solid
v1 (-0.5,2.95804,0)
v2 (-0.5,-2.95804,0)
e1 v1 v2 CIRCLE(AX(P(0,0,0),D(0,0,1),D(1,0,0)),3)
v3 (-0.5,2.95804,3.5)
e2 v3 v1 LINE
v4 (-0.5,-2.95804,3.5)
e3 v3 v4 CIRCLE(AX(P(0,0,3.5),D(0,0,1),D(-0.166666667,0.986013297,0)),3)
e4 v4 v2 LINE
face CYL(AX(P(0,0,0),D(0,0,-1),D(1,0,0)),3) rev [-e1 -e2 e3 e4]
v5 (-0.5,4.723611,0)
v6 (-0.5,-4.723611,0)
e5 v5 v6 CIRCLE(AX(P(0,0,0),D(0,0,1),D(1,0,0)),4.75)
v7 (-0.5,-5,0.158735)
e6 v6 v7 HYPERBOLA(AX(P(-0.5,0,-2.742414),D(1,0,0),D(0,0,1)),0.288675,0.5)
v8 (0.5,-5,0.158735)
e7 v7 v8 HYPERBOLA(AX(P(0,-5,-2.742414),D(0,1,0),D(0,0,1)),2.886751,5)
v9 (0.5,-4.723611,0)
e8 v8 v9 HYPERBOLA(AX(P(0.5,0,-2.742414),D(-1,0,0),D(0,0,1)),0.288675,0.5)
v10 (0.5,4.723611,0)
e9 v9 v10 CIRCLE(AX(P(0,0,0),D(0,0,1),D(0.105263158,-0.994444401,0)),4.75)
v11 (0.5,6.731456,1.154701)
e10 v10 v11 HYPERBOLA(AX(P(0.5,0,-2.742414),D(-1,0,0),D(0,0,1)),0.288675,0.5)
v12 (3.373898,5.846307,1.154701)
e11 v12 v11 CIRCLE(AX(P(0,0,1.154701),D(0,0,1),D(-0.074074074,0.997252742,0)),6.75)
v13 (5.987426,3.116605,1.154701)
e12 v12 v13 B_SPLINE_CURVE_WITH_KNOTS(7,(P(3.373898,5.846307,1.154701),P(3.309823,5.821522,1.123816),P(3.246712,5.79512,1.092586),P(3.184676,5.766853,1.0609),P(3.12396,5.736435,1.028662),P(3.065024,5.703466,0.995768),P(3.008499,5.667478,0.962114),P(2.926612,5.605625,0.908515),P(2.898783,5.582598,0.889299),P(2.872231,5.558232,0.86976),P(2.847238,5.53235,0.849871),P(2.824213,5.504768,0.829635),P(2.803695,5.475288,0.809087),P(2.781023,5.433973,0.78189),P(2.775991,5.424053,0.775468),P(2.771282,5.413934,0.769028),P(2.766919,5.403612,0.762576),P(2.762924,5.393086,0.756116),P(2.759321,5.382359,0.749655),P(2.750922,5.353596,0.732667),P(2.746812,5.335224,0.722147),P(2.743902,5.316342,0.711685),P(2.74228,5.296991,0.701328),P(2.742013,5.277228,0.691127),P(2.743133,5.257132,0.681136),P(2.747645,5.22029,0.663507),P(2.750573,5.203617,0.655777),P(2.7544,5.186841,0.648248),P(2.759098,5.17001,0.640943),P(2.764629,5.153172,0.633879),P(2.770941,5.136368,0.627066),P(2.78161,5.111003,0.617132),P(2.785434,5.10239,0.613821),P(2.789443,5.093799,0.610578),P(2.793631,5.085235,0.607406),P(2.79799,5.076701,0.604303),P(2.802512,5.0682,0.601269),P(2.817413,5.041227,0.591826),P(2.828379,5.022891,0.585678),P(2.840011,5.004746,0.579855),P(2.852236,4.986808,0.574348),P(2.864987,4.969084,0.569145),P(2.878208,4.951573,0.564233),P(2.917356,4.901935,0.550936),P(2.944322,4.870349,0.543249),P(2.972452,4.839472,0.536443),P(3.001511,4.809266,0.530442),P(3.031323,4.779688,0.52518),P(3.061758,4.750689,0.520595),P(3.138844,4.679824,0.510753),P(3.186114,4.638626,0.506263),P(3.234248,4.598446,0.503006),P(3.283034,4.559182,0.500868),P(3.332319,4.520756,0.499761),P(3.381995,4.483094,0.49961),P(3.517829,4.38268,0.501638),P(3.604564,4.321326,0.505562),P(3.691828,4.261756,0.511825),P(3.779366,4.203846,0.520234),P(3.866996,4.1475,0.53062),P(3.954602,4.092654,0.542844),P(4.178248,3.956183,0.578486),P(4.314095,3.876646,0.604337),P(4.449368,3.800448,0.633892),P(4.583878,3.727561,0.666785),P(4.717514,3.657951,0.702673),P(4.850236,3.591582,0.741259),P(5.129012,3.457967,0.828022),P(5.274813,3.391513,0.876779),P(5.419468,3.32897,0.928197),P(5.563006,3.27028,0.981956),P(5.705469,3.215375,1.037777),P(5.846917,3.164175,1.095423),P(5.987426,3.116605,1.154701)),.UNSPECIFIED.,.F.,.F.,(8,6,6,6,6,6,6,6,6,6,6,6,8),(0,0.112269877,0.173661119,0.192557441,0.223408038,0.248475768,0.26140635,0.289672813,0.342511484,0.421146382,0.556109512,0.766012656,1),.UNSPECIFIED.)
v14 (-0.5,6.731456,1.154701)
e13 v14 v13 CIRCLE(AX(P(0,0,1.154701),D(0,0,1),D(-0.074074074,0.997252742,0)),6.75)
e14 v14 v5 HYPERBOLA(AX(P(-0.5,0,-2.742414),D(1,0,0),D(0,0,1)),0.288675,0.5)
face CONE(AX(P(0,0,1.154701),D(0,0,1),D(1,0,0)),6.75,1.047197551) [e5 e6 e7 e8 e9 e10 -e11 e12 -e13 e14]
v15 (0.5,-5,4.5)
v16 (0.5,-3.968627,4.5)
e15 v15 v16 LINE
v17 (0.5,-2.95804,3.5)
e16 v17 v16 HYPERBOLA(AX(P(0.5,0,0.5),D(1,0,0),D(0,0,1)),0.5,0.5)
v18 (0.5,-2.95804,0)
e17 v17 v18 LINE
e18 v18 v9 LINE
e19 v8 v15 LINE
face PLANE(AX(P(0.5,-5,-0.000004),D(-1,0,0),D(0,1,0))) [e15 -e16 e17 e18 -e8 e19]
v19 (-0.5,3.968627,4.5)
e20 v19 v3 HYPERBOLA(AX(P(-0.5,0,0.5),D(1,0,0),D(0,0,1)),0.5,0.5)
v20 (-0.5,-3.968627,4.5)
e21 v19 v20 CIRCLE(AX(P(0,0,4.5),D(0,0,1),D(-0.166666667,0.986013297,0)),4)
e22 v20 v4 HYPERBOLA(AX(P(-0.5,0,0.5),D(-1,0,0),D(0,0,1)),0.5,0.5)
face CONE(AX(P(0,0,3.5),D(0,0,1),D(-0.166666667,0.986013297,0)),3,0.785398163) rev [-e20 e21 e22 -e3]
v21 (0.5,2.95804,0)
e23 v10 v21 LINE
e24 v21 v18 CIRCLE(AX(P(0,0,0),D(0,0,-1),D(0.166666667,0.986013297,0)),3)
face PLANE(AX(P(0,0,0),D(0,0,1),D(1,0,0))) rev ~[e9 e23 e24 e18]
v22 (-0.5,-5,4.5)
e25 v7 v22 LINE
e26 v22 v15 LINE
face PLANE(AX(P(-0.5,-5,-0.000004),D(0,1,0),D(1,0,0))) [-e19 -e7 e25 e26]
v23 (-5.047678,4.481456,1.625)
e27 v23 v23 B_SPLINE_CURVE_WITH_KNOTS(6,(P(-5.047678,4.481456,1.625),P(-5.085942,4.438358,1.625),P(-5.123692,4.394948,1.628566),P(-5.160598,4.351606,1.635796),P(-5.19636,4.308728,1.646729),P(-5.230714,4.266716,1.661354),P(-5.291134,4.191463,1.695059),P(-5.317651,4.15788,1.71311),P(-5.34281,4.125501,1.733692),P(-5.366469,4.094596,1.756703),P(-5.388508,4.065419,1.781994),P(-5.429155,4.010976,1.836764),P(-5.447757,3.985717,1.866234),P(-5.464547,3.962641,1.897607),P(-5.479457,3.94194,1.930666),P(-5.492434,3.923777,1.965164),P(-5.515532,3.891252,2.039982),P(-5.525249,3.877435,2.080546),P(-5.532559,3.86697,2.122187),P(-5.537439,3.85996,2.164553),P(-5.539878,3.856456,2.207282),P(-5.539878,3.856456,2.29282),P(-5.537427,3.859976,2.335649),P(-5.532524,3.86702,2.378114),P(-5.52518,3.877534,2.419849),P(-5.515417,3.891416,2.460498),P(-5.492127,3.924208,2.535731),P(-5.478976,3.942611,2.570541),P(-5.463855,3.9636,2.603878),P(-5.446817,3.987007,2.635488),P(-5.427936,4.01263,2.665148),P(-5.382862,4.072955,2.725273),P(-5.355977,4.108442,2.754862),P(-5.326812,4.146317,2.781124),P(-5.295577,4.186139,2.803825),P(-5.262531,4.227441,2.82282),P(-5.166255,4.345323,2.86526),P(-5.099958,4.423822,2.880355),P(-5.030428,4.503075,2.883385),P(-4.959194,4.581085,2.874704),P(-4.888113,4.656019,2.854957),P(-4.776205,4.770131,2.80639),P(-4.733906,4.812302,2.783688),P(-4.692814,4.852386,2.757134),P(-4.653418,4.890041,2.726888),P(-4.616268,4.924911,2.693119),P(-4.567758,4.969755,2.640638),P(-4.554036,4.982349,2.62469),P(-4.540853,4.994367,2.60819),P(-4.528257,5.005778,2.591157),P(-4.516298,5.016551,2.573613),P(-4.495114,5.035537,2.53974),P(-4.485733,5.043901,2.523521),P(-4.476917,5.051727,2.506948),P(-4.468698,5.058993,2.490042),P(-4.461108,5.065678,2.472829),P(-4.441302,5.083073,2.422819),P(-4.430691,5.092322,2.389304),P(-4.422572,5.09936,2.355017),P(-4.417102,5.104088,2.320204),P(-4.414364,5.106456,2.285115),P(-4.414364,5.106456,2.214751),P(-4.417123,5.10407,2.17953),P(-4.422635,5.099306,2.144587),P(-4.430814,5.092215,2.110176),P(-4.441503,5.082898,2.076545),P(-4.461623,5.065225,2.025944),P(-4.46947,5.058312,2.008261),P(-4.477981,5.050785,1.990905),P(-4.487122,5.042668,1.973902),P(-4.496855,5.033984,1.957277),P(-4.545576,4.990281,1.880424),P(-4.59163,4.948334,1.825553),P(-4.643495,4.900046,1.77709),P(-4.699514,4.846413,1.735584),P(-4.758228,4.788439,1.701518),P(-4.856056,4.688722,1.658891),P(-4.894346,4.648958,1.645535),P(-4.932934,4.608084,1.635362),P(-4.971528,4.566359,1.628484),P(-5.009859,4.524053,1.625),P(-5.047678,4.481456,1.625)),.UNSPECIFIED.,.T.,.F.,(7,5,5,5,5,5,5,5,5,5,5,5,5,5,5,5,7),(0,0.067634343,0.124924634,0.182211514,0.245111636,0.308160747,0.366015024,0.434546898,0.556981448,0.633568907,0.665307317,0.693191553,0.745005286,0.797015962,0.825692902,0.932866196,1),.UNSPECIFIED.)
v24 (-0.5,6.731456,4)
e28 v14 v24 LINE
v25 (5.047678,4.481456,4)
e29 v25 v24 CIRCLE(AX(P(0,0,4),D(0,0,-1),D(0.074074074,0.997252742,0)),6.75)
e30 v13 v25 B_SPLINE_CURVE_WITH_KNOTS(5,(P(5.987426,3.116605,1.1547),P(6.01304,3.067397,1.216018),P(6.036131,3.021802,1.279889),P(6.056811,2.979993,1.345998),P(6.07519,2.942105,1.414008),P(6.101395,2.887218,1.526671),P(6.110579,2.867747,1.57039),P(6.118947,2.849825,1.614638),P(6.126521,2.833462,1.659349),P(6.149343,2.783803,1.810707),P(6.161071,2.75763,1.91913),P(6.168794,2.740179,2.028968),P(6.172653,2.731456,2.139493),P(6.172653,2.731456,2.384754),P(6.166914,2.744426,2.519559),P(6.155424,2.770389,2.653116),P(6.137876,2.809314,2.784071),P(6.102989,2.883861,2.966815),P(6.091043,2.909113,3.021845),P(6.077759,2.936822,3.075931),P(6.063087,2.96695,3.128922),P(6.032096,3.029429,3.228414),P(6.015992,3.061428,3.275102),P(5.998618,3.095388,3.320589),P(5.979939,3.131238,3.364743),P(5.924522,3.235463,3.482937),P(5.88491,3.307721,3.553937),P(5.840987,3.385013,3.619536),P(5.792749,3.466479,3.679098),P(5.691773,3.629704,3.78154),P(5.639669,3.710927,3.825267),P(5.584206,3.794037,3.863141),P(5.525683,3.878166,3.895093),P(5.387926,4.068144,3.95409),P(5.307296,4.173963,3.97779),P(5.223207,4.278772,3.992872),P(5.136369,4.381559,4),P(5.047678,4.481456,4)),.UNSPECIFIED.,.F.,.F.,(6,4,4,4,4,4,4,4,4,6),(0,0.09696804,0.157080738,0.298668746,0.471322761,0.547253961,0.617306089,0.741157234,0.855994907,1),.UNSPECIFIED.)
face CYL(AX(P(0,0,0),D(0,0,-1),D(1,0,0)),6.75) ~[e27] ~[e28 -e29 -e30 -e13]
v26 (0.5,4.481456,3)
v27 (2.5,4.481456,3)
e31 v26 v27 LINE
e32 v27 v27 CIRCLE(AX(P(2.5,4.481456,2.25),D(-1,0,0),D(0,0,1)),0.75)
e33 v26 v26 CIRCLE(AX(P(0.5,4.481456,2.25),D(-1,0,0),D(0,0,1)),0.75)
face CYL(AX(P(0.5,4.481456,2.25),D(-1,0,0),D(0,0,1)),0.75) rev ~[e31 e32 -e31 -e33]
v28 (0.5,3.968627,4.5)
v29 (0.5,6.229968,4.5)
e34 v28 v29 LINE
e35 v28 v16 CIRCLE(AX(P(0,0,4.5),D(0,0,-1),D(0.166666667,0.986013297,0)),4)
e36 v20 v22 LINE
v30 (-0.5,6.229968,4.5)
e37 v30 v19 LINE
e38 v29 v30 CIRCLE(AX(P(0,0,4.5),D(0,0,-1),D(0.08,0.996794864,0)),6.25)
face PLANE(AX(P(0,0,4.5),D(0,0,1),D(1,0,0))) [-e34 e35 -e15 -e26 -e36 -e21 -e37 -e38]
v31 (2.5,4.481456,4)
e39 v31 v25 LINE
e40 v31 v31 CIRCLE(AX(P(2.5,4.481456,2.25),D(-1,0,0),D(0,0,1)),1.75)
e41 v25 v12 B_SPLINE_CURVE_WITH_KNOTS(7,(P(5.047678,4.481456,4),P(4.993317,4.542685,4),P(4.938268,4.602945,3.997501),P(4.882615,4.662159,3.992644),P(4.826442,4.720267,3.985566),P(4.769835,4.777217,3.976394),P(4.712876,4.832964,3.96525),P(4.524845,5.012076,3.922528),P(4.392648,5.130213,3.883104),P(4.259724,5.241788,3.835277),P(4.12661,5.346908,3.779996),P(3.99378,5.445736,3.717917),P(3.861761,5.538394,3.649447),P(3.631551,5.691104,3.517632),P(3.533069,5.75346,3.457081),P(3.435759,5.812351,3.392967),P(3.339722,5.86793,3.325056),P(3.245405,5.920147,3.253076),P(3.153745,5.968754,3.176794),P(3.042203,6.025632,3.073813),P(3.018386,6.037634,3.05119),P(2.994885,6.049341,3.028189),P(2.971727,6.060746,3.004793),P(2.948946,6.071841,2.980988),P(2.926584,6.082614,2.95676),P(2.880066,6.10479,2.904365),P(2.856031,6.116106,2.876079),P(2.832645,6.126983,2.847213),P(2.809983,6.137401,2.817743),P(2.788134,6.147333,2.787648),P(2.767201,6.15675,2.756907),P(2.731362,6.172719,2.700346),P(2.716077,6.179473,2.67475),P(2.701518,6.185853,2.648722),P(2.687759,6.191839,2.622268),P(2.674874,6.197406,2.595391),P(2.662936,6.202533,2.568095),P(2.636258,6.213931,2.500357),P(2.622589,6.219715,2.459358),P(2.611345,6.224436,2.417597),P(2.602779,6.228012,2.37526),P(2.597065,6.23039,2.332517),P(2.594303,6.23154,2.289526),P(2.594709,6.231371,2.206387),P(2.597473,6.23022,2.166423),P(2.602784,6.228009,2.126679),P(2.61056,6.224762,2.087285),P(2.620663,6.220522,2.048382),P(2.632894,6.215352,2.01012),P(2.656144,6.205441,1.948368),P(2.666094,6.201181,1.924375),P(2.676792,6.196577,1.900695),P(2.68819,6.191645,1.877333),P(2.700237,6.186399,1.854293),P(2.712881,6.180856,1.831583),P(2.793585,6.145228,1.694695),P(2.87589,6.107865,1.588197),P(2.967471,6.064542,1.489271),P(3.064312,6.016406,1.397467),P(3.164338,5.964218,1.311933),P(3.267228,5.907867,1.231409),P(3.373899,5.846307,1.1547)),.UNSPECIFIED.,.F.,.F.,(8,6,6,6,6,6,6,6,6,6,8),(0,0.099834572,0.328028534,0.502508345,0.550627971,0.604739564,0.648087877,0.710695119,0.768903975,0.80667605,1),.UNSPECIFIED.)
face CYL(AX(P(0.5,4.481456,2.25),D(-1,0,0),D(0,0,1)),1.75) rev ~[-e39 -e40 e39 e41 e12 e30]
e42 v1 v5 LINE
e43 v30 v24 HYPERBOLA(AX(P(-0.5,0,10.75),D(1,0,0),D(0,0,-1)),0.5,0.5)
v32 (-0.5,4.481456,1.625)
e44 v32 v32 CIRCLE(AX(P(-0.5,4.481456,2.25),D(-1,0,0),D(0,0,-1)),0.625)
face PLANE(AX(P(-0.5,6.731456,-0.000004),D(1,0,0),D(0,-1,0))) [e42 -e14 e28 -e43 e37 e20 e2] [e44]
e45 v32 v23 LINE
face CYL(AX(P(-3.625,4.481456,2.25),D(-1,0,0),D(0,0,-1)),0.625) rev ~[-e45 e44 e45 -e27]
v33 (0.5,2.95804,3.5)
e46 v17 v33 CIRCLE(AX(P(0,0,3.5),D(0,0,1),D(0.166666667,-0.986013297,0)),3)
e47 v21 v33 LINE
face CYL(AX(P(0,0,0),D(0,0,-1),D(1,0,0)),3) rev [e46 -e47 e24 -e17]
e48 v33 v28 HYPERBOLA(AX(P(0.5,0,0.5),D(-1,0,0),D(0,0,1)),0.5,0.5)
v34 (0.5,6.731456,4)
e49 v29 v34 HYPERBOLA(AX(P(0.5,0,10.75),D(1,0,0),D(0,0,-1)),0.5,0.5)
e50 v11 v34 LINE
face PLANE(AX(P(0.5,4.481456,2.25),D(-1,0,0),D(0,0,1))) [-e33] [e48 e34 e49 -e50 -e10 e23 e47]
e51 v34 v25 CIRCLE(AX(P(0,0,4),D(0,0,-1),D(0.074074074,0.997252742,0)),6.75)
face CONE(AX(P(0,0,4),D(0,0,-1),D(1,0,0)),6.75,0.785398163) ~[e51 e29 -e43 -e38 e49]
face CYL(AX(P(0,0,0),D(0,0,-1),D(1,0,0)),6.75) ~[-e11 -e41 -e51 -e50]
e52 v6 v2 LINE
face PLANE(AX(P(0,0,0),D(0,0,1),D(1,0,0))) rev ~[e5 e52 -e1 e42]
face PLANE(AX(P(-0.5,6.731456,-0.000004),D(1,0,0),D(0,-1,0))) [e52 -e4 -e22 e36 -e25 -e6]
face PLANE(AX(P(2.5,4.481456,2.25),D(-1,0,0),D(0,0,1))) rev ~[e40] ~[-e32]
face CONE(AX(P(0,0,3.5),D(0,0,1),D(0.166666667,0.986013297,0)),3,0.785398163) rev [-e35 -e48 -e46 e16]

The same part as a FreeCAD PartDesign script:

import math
import FreeCAD as App
import Part
import Sketcher
Q = App.Units.Quantity


def edges_at(feature, points):
    """Names of the edges that pass closest to the given points."""
    edges = feature.Shape.Edges
    near = lambda p: min(range(len(edges)), key=lambda i: edges[i].distToShape(Part.Vertex(*p))[0])
    return sorted({f"Edge{near(p) + 1}" for p in points})

doc = App.newDocument("Part")
body = doc.addObject("PartDesign::Body", "Body")

sketch1 = body.newObject("Sketcher::SketchObject", "Sketch")
sketch1.AttachmentSupport = (doc.getObject("XY_Plane"), [""])
sketch1.MapMode = "FlatFace"
sketch1.addGeometry([
    Part.Circle(App.Vector(0, 0, 0), App.Vector(0, 0, 1), 6.8),
    Part.Circle(App.Vector(0, 0, 0), App.Vector(0, 0, 1), 3),
], False)
sketch1.addConstraint([
    Sketcher.Constraint("Coincident", 0, 3, -1, 1),
    Sketcher.Constraint("Coincident", 1, 3, -1, 1),
    Sketcher.Constraint("Diameter", 1, Q("6 mm")),
    Sketcher.Constraint("Diameter", 0, Q("13.5 mm")),
])
pad1 = body.newObject("PartDesign::Pad", "Pad")
pad1.Profile = sketch1
pad1.Length = 4.5
doc.recompute()

chamfer = body.newObject("PartDesign::Chamfer", "Chamfer")
chamfer.Base = (pad1, edges_at(pad1, [(-6.75, 0, 0)]))
chamfer.ChamferType = "Two distances"
chamfer.Size = 2
chamfer.Size2 = 1.154701
chamfer.FlipDirection = True

sketch2 = body.newObject("Sketcher::SketchObject", "Sketch001")
sketch2.AttachmentSupport = (doc.getObject("XY_Plane"), [""])
sketch2.MapMode = "FlatFace"
sketch2.AttachmentOffset = App.Placement(App.Vector(0, 0, -0.000004), App.Rotation())
sketch2.addGeometry([
    Part.LineSegment(App.Vector(-0.5, 6.7, 0), App.Vector(-0.5, -5, 0)),
    Part.LineSegment(App.Vector(-0.5, -5, 0), App.Vector(0.5, -5, 0)),
    Part.LineSegment(App.Vector(0.5, -5, 0), App.Vector(0.5, 6.7, 0)),
    Part.ArcOfCircle(Part.Circle(App.Vector(0, 0, 0), App.Vector(0, 0, 1), 6.8), math.radians(85.75), math.radians(94.25)),
], False)
sketch2.addConstraint([
    Sketcher.Constraint("Coincident", 0, 2, 1, 1),
    Sketcher.Constraint("Coincident", 1, 2, 2, 1),
    Sketcher.Constraint("Coincident", 2, 2, 3, 1),
    Sketcher.Constraint("Coincident", 3, 2, 0, 1),
    Sketcher.Constraint("Vertical", 0),
    Sketcher.Constraint("Horizontal", 1),
    Sketcher.Constraint("Vertical", 2),
    Sketcher.Constraint("Coincident", 3, 3, -1, 1),
    Sketcher.Constraint("Horizontal", 2, 2, 3, 2),
    Sketcher.Constraint("DistanceX", 1, 1, 1, 2, Q("1 mm")),
    Sketcher.Constraint("Radius", 3, Q("6.75 mm")),
    Sketcher.Constraint("DistanceY", 0, 2, -1, 1, Q("5 mm")),
])
pocket1 = body.newObject("PartDesign::Pocket", "Pocket")
pocket1.Profile = sketch2
pocket1.Length = 4.500004
pocket1.Reversed = True
doc.recompute()

chamfer2 = body.newObject("PartDesign::Chamfer", "Chamfer001")
chamfer2.Base = (pocket1, edges_at(pocket1, [(-4.593, -4.947, 4.5)]))
chamfer2.Size = 0.5

sketch3 = body.newObject("Sketcher::SketchObject", "Sketch002")
sketch3.AttachmentSupport = (doc.getObject("XZ_Plane"), [""])
sketch3.MapMode = "FlatFace"
sketch3.AttachmentOffset = App.Placement(App.Vector(0, 0, -4.481456), App.Rotation())
sketch3.addGeometry([
    Part.LineSegment(App.Vector(-6.8, 2.2, 0), App.Vector(-0.5, 2.2, 0)),
    Part.LineSegment(App.Vector(-0.5, 2.2, 0), App.Vector(-0.5, 1.6, 0)),
    Part.LineSegment(App.Vector(-0.5, 1.6, 0), App.Vector(-6.8, 1.6, 0)),
    Part.LineSegment(App.Vector(-6.8, 1.6, 0), App.Vector(-6.8, 2.2, 0)),
], False)
sketch3.addGeometry(Part.LineSegment(App.Vector(-0.5, 2.2, 0), App.Vector(-6.8, 2.2, 0)), True)
sketch3.addConstraint([
    Sketcher.Constraint("Coincident", 0, 2, 1, 1),
    Sketcher.Constraint("Coincident", 1, 2, 2, 1),
    Sketcher.Constraint("Coincident", 2, 2, 3, 1),
    Sketcher.Constraint("Coincident", 3, 2, 0, 1),
    Sketcher.Constraint("Horizontal", 0),
    Sketcher.Constraint("Vertical", 1),
    Sketcher.Constraint("Horizontal", 2),
    Sketcher.Constraint("Vertical", 3),
    Sketcher.Constraint("Horizontal", 4),
    Sketcher.Constraint("Coincident", 4, 1, 0, 2),
    Sketcher.Constraint("Vertical", 2, 2, 4, 2),
    Sketcher.Constraint("DistanceX", 0, 1, 0, 2, Q("6.25 mm")),
    Sketcher.Constraint("DistanceX", 0, 2, -1, 1, Q("0.5 mm")),
    Sketcher.Constraint("DistanceY", 1, 2, 1, 1, Q("0.625 mm")),
    Sketcher.Constraint("DistanceY", -1, 1, 0, 2, Q("2.25 mm")),
])
groove = body.newObject("PartDesign::Groove", "Groove")
groove.Profile = sketch3
groove.ReferenceAxis = (sketch3, ["Axis0"])
groove.Angle = 360

sketch4 = body.newObject("Sketcher::SketchObject", "Sketch003")
sketch4.AttachmentSupport = (doc.getObject("YZ_Plane"), [""])
sketch4.MapMode = "FlatFace"
sketch4.AttachmentOffset = App.Placement(App.Vector(0, 0, 0.5), App.Rotation())
sketch4.addGeometry(Part.Circle(App.Vector(4.5, 2.2, 0), App.Vector(0, 0, 1), 1.8), False)
sketch4.addConstraint([
    Sketcher.Constraint("Diameter", 0, Q("3.5 mm")),
    Sketcher.Constraint("DistanceY", -1, 1, 0, 3, Q("2.25 mm")),
    Sketcher.Constraint("DistanceX", -1, 1, 0, 3, Q("4.481456 mm")),
])
pocket2 = body.newObject("PartDesign::Pocket", "Pocket001")
pocket2.Profile = sketch4
pocket2.Type = "UpToFirst"
pocket2.Reversed = True

sketch5 = body.newObject("Sketcher::SketchObject", "Sketch004")
sketch5.AttachmentSupport = (doc.getObject("YZ_Plane"), [""])
sketch5.MapMode = "FlatFace"
sketch5.AttachmentOffset = App.Placement(App.Vector(0, 0, 0.5), App.Rotation())
sketch5.addGeometry([
    Part.Circle(App.Vector(4.5, 2.2, 0), App.Vector(0, 0, 1), 1.8),
    Part.Circle(App.Vector(4.5, 2.2, 0), App.Vector(0, 0, 1), 0.8),
], False)
sketch5.addConstraint([
    Sketcher.Constraint("Coincident", 1, 3, 0, 3),
    Sketcher.Constraint("Diameter", 0, Q("3.5 mm")),
    Sketcher.Constraint("Diameter", 1, Q("1.5 mm")),
    Sketcher.Constraint("DistanceY", -1, 1, 0, 3, Q("2.25 mm")),
    Sketcher.Constraint("DistanceX", -1, 1, 0, 3, Q("4.481456 mm")),
])
pad2 = body.newObject("PartDesign::Pad", "Pad001")
pad2.Profile = sketch5
pad2.Length = 2
doc.recompute()

chamfer3 = body.newObject("PartDesign::Chamfer", "Chamfer002")
chamfer3.Base = (pad2, edges_at(pad2, [(-3, 0, 4.5), (3, 0, 4.5)]))
chamfer3.Size = 1

sketch6 = body.newObject("Sketcher::SketchObject", "Sketch005")
sketch6.AttachmentSupport = (doc.getObject("XY_Plane"), [""])
sketch6.MapMode = "FlatFace"
sketch6.AttachmentOffset = App.Placement(App.Vector(0, 0, 4.5), App.Rotation())
sketch6.addGeometry(Part.Circle(App.Vector(0, 0, 0), App.Vector(0, 0, 1), 3), False)
sketch6.addConstraint([
    Sketcher.Constraint("Coincident", 0, 3, -1, 1),
    Sketcher.Constraint("Diameter", 0, Q("6 mm")),
])
pocket3 = body.newObject("PartDesign::Pocket", "Pocket002")
pocket3.Profile = sketch6
pocket3.Type = "ThroughAll"

doc.recompute()
